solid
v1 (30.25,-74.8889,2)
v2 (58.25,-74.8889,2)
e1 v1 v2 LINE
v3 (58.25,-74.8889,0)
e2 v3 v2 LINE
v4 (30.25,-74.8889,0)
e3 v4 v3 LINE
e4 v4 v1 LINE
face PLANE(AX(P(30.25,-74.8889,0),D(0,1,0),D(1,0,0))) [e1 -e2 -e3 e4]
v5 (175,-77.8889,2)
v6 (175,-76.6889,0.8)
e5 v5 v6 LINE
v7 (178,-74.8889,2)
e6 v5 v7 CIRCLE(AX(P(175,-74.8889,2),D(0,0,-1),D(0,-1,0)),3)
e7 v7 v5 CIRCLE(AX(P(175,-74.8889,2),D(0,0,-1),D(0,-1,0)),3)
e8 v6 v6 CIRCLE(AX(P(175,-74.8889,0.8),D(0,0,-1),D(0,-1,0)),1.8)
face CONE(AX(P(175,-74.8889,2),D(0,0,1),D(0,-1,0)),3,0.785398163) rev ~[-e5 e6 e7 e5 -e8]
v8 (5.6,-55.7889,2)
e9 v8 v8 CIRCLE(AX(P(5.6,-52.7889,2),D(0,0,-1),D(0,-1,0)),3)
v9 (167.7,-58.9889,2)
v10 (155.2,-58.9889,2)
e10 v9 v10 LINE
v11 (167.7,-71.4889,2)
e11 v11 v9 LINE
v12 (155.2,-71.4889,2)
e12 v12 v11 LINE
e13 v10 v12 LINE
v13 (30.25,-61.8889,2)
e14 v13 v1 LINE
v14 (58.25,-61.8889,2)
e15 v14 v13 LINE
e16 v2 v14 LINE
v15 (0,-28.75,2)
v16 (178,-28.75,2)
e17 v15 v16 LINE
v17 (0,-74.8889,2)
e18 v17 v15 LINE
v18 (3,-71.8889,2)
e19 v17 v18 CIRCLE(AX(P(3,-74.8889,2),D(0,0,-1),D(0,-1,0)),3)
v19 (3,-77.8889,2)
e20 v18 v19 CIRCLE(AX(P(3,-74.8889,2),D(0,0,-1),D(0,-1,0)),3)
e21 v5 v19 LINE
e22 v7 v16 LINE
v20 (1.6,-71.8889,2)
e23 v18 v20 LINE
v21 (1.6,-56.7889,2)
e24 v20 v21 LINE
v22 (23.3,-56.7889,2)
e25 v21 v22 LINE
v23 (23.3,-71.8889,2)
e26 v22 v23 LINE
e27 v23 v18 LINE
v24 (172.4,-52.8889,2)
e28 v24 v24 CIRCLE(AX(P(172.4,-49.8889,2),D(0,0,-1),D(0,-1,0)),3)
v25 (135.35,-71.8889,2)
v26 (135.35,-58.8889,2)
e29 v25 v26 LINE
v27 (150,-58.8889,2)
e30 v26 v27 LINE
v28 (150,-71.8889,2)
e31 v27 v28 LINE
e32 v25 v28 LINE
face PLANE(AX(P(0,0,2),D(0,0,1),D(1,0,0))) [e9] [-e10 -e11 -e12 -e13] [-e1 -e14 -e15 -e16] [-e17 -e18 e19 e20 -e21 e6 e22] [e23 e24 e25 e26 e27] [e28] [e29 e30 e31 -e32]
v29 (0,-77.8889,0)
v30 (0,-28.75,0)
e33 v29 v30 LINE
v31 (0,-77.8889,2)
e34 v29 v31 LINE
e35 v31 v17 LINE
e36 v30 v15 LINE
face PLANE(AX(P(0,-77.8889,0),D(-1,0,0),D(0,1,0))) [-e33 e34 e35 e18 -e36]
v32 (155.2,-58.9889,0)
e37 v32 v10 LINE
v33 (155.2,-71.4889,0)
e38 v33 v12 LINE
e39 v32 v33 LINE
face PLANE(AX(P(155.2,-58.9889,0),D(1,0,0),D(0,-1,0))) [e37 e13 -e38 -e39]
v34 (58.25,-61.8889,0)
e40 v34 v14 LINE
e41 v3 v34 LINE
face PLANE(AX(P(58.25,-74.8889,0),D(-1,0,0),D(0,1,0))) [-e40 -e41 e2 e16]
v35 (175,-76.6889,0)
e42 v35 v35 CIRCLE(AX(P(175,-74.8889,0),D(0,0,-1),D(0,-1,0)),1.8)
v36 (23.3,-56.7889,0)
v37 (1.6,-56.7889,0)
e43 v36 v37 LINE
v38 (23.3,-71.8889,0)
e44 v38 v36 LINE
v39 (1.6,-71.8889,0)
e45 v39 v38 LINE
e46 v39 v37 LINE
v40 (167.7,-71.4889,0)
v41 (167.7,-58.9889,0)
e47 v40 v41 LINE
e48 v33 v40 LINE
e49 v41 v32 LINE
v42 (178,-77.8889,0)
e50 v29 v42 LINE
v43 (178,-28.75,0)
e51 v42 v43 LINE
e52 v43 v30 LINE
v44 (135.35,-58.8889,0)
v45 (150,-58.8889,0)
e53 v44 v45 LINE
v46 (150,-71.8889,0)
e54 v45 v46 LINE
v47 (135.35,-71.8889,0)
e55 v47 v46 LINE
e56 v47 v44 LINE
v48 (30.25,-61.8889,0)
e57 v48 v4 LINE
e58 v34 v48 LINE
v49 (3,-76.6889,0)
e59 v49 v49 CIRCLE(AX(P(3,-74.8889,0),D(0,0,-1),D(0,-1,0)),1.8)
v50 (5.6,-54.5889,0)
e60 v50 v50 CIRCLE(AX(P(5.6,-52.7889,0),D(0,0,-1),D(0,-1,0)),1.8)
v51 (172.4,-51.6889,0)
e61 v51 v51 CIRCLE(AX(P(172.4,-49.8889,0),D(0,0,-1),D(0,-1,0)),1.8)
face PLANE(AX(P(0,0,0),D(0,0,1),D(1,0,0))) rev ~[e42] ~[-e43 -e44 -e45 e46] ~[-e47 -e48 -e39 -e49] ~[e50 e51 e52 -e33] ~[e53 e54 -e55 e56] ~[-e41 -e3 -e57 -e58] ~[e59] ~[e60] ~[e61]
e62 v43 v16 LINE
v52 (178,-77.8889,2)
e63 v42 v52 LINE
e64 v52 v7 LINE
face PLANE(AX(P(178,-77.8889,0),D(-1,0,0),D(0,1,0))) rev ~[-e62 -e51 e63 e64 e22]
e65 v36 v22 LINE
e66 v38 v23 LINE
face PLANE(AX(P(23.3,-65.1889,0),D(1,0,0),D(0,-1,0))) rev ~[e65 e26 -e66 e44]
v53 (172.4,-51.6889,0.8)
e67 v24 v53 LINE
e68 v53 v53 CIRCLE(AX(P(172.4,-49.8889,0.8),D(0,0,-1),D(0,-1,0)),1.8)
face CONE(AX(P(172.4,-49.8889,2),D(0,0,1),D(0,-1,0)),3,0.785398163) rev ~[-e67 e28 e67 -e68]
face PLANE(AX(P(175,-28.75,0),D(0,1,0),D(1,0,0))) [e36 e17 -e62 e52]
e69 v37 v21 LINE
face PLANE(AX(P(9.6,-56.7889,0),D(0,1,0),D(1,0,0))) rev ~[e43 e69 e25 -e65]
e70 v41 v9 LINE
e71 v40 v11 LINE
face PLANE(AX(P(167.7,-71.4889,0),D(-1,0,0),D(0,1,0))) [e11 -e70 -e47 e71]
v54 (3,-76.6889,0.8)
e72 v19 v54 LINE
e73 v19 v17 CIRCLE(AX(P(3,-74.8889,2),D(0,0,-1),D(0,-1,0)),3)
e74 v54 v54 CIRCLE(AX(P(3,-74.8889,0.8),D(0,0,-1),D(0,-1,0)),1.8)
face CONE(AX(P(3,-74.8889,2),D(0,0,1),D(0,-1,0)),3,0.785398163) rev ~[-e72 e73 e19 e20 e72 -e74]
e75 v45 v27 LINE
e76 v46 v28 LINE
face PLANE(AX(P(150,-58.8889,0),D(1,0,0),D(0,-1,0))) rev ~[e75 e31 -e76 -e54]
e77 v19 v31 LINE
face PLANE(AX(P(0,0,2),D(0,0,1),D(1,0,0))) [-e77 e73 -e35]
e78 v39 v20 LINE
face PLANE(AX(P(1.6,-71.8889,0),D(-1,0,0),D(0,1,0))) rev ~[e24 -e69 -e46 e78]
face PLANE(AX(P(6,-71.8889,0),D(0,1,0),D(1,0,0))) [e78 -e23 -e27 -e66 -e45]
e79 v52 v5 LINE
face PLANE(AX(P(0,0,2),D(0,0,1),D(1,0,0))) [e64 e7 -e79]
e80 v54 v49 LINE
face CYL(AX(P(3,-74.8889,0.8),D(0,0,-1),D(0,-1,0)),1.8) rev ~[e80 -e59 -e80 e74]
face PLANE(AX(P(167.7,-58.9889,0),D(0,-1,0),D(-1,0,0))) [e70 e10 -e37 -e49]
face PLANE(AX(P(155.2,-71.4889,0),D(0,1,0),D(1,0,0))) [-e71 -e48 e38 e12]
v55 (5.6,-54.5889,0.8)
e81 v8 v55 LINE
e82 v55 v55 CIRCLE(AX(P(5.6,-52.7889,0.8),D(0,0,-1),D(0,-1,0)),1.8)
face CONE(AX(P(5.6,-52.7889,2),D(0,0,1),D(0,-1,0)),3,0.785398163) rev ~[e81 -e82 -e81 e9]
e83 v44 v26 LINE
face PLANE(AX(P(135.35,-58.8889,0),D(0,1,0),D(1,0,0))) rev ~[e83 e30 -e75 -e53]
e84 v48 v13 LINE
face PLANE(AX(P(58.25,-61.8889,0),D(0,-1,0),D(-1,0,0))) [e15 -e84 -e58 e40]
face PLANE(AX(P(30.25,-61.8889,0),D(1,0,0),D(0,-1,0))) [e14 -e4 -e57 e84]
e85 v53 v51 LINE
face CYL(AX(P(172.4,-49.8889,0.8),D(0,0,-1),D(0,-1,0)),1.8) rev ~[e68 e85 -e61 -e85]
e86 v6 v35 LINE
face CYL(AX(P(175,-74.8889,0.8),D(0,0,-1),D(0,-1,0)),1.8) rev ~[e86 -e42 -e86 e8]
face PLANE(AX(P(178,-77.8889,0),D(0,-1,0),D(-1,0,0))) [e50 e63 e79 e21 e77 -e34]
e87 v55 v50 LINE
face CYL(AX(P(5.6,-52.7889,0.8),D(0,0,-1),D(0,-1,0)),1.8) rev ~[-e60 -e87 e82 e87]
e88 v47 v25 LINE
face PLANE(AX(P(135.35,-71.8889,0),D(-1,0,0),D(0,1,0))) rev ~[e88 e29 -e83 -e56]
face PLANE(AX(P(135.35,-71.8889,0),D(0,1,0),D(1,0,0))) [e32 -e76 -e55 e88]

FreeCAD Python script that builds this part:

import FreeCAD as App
import Part
import Sketcher
from FreeCAD import Vector

doc = App.newDocument("Part")
body = doc.addObject("PartDesign::Body", "Body")

# Sketch on XY plane
sketch1 = body.newObject("Sketcher::SketchObject", "Sketch")
sketch1.AttachmentSupport = (doc.getObject("XY_Plane"), [""])
sketch1.MapMode = "FlatFace"
sketch1.addGeometry([
    Part.LineSegment(Vector(178, -77.8889, 0), Vector(178, -28.75, 0)),  # 0
    Part.LineSegment(Vector(178, -28.75, 0), Vector(0, -28.75, 0)),  # 1
    Part.LineSegment(Vector(0, -28.75, 0), Vector(0, -77.8889, 0)),  # 2
    Part.LineSegment(Vector(0, -77.8889, 0), Vector(178, -77.8889, 0)),  # 3
    Part.LineSegment(Vector(30.25, -74.8889, 0), Vector(30.25, -61.8889, 0)),  # 4
    Part.LineSegment(Vector(30.25, -61.8889, 0), Vector(58.25, -61.8889, 0)),  # 5
    Part.LineSegment(Vector(58.25, -61.8889, 0), Vector(58.25, -74.8889, 0)),  # 6
    Part.LineSegment(Vector(58.25, -74.8889, 0), Vector(30.25, -74.8889, 0)),  # 7
    Part.LineSegment(Vector(150, -71.8889, 0), Vector(135.35, -71.8889, 0)),  # 8
    Part.LineSegment(Vector(135.35, -71.8889, 0), Vector(135.35, -58.8889, 0)),  # 9
    Part.LineSegment(Vector(135.35, -58.8889, 0), Vector(150, -58.8889, 0)),  # 10
    Part.LineSegment(Vector(150, -58.8889, 0), Vector(150, -71.8889, 0)),  # 11
    Part.LineSegment(Vector(23.3, -71.8889, 0), Vector(1.6, -71.8889, 0)),  # 12
    Part.LineSegment(Vector(1.6, -71.8889, 0), Vector(1.6, -56.7889, 0)),  # 13
    Part.LineSegment(Vector(1.6, -56.7889, 0), Vector(23.3, -56.7889, 0)),  # 14
    Part.LineSegment(Vector(23.3, -56.7889, 0), Vector(23.3, -71.8889, 0)),  # 15
    Part.LineSegment(Vector(155.2, -71.4889, 0), Vector(155.2, -58.9889, 0)),  # 16
    Part.LineSegment(Vector(155.2, -58.9889, 0), Vector(167.7, -58.9889, 0)),  # 17
    Part.LineSegment(Vector(167.7, -58.9889, 0), Vector(167.7, -71.4889, 0)),  # 18
    Part.LineSegment(Vector(167.7, -71.4889, 0), Vector(155.2, -71.4889, 0)),  # 19
], False)
sketch1.addConstraint([
    Sketcher.Constraint("Coincident", 0, 2, 1, 1),
    Sketcher.Constraint("Coincident", 1, 2, 2, 1),
    Sketcher.Constraint("Coincident", 2, 2, 3, 1),
    Sketcher.Constraint("Coincident", 3, 2, 0, 1),
    Sketcher.Constraint("Coincident", 4, 2, 5, 1),
    Sketcher.Constraint("Coincident", 5, 2, 6, 1),
    Sketcher.Constraint("Coincident", 6, 2, 7, 1),
    Sketcher.Constraint("Coincident", 7, 2, 4, 1),
    Sketcher.Constraint("Coincident", 8, 2, 9, 1),
    Sketcher.Constraint("Coincident", 9, 2, 10, 1),
    Sketcher.Constraint("Coincident", 10, 2, 11, 1),
    Sketcher.Constraint("Coincident", 11, 2, 8, 1),
    Sketcher.Constraint("Coincident", 12, 2, 13, 1),
    Sketcher.Constraint("Coincident", 13, 2, 14, 1),
    Sketcher.Constraint("Coincident", 14, 2, 15, 1),
    Sketcher.Constraint("Coincident", 15, 2, 12, 1),
    Sketcher.Constraint("Coincident", 16, 2, 17, 1),
    Sketcher.Constraint("Coincident", 17, 2, 18, 1),
    Sketcher.Constraint("Coincident", 18, 2, 19, 1),
    Sketcher.Constraint("Coincident", 19, 2, 16, 1),
    Sketcher.Constraint("Vertical", 0),
    Sketcher.Constraint("Horizontal", 1),
    Sketcher.Constraint("Vertical", 2),
    Sketcher.Constraint("Horizontal", 3),
    Sketcher.Constraint("Vertical", 4),
    Sketcher.Constraint("Horizontal", 5),
    Sketcher.Constraint("Vertical", 6),
    Sketcher.Constraint("Horizontal", 7),
    Sketcher.Constraint("Horizontal", 8),
    Sketcher.Constraint("Vertical", 9),
    Sketcher.Constraint("Horizontal", 10),
    Sketcher.Constraint("Vertical", 11),
    Sketcher.Constraint("Horizontal", 12),
    Sketcher.Constraint("Vertical", 13),
    Sketcher.Constraint("Horizontal", 14),
    Sketcher.Constraint("Vertical", 15),
    Sketcher.Constraint("Vertical", 16),
    Sketcher.Constraint("Horizontal", 17),
    Sketcher.Constraint("Vertical", 18),
    Sketcher.Constraint("Horizontal", 19),
    Sketcher.Constraint("PointOnObject", 1, 2, -2),
    Sketcher.Constraint("Horizontal", 11, 2, 12, 2),
    Sketcher.Constraint("Equal", 6, 9),
    Sketcher.Constraint("Equal", 19, 16),
    Sketcher.Constraint("DistanceX", 1, 2, 1, 1, 178.0),
    Sketcher.Constraint("DistanceX", 5, 1, 5, 2, 28.0),
    Sketcher.Constraint("DistanceY", 4, 1, 4, 2, 13.0),
    Sketcher.Constraint("DistanceX", 12, 2, 12, 1, 21.7),
    Sketcher.Constraint("DistanceX", 17, 1, 17, 2, 12.5),
    Sketcher.Constraint("DistanceY", 13, 1, 13, 2, 15.1),
    Sketcher.Constraint("DistanceX", -1, 1, 10, 2, 150.0),
    Sketcher.Constraint("DistanceY", 2, 2, 4, 2, 16.0),
    Sketcher.Constraint("DistanceY", 3, 2, 8, 2, 6.0),
    Sketcher.Constraint("DistanceX", 8, 2, 8, 1, 14.65),
    Sketcher.Constraint("DistanceX", -1, 1, 12, 2, 1.6),
    Sketcher.Constraint("DistanceX", -1, 1, 16, 2, 155.2),
    Sketcher.Constraint("DistanceX", 6, 2, 8, 2, 77.1),
    Sketcher.Constraint("DistanceY", 16, 2, 10, 2, 0.1),
    Sketcher.Constraint("DistanceY", 0, 1, 0, 2, 49.139),
    Sketcher.Constraint("DistanceY", 0, 2, -1, 1, 28.75),
])
pad1 = body.newObject("PartDesign::Pad", "Pad")
pad1.Profile = sketch1
pad1.Length = 2

# Sketch on XY plane
sketch2 = body.newObject("Sketcher::SketchObject", "Sketch001")
sketch2.AttachmentSupport = (doc.getObject("XY_Plane"), [""])
sketch2.MapMode = "FlatFace"
sketch2.AttachmentOffset = App.Placement(Vector(0, 0, 2), App.Rotation())
sketch2.addGeometry([
    Part.Circle(Vector(5.6, -52.7889, 0), Vector(0, 0, 1), 1.8),
    Part.Circle(Vector(3, -74.8889, 0), Vector(0, 0, 1), 1.8),
    Part.Circle(Vector(175, -74.8889, 0), Vector(0, 0, 1), 1.8),
    Part.Circle(Vector(172.4, -49.8889, 0), Vector(0, 0, 1), 1.8),
], False)
sketch2.addConstraint([
    Sketcher.Constraint("Equal", 0, 1),
    Sketcher.Constraint("Equal", 1, 2),
    Sketcher.Constraint("Equal", 2, 3),
    Sketcher.Constraint("Horizontal", 1, 3, 2, 3),
    Sketcher.Constraint("Diameter", 0, 3.6),
    Sketcher.Constraint("DistanceX", -1, 1, 1, 3, 3.0),
    Sketcher.Constraint("DistanceX", -1, 1, 2, 3, 175.0),
    Sketcher.Constraint("DistanceY", 2, 3, 3, 3, 25.0),
    Sketcher.Constraint("DistanceX", -1, 1, 0, 3, 5.6),
    Sketcher.Constraint("DistanceX", -1, 1, 3, 3, 172.4),
    Sketcher.Constraint("DistanceY", 1, 3, 0, 3, 22.1),
    Sketcher.Constraint("DistanceY", 0, 3, -1, 1, 52.789),
])
doc.recompute()
hole = body.newObject("PartDesign::Hole", "Hole")
hole.Profile = sketch2
hole.ThreadType = "None"
hole.Diameter = 3.6
hole.DepthType = "ThroughAll"
hole.HoleCutType = "Countersink"
hole.HoleCutDiameter = 6
hole.HoleCutCountersinkAngle = 90

doc.recompute()
